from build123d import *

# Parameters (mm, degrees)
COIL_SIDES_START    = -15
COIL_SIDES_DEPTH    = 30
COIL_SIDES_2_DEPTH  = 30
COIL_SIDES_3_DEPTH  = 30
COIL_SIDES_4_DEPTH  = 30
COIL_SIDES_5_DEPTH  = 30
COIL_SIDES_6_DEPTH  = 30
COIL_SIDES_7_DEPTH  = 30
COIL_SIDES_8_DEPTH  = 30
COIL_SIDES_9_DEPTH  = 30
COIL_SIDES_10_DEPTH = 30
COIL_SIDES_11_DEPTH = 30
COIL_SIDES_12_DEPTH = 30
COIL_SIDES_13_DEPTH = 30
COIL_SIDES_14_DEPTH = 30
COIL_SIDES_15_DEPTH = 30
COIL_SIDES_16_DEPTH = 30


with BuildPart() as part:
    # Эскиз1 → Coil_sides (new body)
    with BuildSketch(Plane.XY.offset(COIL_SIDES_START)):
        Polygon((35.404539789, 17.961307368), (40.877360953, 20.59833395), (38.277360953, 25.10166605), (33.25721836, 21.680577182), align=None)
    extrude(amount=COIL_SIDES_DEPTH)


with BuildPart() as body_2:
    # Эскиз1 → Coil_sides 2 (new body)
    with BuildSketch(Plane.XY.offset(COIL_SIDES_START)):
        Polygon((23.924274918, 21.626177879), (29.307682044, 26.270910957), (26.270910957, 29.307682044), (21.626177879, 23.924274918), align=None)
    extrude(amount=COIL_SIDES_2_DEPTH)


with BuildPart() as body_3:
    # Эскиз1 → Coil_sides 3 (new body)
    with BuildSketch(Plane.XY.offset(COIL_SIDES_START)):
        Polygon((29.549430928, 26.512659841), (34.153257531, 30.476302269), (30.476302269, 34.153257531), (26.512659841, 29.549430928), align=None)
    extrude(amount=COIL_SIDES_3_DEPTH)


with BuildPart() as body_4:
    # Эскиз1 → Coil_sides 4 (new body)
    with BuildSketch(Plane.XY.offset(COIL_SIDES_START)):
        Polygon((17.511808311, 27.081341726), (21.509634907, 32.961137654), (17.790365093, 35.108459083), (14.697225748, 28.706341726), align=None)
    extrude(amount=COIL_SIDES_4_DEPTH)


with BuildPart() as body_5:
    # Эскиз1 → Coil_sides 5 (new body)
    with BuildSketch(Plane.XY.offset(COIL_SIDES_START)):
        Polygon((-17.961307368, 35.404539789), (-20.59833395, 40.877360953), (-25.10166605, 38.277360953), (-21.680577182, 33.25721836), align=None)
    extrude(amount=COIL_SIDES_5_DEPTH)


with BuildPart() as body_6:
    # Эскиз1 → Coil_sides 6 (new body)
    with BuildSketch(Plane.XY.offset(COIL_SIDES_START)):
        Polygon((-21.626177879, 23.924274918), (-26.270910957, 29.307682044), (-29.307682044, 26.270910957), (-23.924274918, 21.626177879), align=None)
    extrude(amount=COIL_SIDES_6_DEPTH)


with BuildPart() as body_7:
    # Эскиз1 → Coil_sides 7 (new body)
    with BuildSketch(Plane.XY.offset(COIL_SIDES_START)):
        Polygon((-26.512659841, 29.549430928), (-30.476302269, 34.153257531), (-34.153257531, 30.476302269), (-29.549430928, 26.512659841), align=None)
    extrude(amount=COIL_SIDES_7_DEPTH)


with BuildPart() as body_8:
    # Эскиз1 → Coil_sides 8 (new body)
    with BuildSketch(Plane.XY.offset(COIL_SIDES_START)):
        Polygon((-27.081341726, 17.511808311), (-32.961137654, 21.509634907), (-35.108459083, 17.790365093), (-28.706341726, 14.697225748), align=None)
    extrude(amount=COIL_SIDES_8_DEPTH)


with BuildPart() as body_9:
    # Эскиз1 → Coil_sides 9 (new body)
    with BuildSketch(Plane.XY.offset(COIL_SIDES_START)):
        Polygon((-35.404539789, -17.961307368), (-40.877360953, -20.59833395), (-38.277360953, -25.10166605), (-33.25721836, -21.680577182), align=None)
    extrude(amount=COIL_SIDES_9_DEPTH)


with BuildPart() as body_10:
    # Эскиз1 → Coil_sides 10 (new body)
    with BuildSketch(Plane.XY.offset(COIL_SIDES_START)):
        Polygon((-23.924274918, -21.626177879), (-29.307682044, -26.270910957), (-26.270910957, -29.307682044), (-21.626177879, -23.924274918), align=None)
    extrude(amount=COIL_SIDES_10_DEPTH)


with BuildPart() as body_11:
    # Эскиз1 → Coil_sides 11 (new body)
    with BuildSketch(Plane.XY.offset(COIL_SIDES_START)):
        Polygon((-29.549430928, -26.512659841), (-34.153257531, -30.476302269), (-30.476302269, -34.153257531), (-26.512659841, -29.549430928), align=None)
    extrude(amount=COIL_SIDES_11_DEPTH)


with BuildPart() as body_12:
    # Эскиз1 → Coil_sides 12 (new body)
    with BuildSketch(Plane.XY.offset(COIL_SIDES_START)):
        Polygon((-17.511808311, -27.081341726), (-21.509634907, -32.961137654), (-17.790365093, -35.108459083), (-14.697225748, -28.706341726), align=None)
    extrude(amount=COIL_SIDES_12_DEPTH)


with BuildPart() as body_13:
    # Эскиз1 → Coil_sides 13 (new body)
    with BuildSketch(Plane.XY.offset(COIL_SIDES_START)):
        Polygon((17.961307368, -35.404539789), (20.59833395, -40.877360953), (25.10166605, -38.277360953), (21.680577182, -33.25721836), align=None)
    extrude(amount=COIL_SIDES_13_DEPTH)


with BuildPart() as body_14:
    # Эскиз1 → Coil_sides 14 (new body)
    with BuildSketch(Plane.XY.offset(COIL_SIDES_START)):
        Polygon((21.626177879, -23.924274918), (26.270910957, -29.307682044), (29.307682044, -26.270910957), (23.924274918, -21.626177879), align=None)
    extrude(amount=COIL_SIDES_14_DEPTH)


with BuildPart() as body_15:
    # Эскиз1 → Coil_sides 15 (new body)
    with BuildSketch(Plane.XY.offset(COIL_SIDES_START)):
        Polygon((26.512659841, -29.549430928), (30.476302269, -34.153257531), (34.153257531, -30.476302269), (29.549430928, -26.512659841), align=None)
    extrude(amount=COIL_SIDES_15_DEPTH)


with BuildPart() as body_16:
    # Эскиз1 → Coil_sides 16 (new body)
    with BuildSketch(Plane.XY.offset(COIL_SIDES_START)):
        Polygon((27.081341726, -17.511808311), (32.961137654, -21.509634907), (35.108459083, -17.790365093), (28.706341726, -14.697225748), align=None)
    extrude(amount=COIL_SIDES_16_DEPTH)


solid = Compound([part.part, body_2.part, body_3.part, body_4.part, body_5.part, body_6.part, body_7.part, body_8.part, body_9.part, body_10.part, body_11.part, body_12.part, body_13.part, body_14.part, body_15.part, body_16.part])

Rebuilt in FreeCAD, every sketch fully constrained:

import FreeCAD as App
import Part
import Sketcher
Q = App.Units.Quantity


def add_polygon(sketch, points):
    """Adds a closed chain of lines whose ends are joined by coincident constraints."""
    first, n = sketch.GeometryCount, len(points)
    for a, b in zip(points, points[1:] + points[:1]):
        sketch.addGeometry(Part.LineSegment(App.Vector(*a, 0), App.Vector(*b, 0)), False)
    for i in range(n):
        sketch.addConstraint(Sketcher.Constraint("Coincident", first + i, 2, first + (i + 1) % n, 1))

doc = App.newDocument("Part")
body = doc.addObject("PartDesign::Body", "Body")

sketch1 = body.newObject("Sketcher::SketchObject", "Sketch")
sketch1.AttachmentSupport = (doc.getObject("XY_Plane"), [""])
sketch1.MapMode = "FlatFace"
sketch1.AttachmentOffset = App.Placement(App.Vector(0, 0, -15), App.Rotation())
add_polygon(sketch1, [(35.4, 18), (40.9, 20.6), (38.3, 25.1), (33.3, 21.7)])
sketch1.addConstraint(Sketcher.Constraint("Parallel", 1, 3))
sketch1.addConstraint(Sketcher.Constraint("Equal", 0, 2))
sketch1.addConstraint(Sketcher.Constraint("Angle", 1, Q("120 deg")))
sketch1.addConstraint(Sketcher.Constraint("Distance", 1, Q("5.2 mm")))
sketch1.addConstraint(Sketcher.Constraint("DistanceX", -1, 1, 0, 2, Q("40.877361 mm")))
sketch1.addConstraint(Sketcher.Constraint("DistanceX", -1, 1, 2, 2, Q("33.257218 mm")))
sketch1.addConstraint(Sketcher.Constraint("DistanceX", -1, 1, 3, 2, Q("35.40454 mm")))
sketch1.addConstraint(Sketcher.Constraint("DistanceY", -1, 1, 0, 2, Q("20.598334 mm")))
pad1 = body.newObject("PartDesign::Pad", "Pad")
pad1.Profile = sketch1
pad1.Length = 30
body2 = doc.addObject("PartDesign::Body", "Body001")

sketch2 = body2.newObject("Sketcher::SketchObject", "Sketch001")
sketch2.AttachmentSupport = (doc.getObject("XY_Plane001"), [""])
sketch2.MapMode = "FlatFace"
sketch2.AttachmentOffset = App.Placement(App.Vector(0, 0, -15), App.Rotation())
add_polygon(sketch2, [(23.9, 21.6), (29.3, 26.3), (26.3, 29.3), (21.6, 23.9)])
sketch2.addConstraint(Sketcher.Constraint("Parallel", 1, 3))
sketch2.addConstraint(Sketcher.Constraint("Equal", 0, 2))
sketch2.addConstraint(Sketcher.Constraint("Angle", 1, Q("135 deg")))
sketch2.addConstraint(Sketcher.Constraint("Distance", 3, Q("3.25 mm")))
sketch2.addConstraint(Sketcher.Constraint("DistanceY", -1, 1, 0, 2, Q("26.270911 mm")))
sketch2.addConstraint(Sketcher.Constraint("DistanceX", -1, 1, 1, 2, Q("26.270911 mm")))
sketch2.addConstraint(Sketcher.Constraint("DistanceX", 1, 2, 0, 2, Q("3.036771 mm")))
sketch2.addConstraint(Sketcher.Constraint("Distance", 0, Q("7.110177 mm")))
pad2 = body2.newObject("PartDesign::Pad", "Pad001")
pad2.Profile = sketch2
pad2.Length = 30
body3 = doc.addObject("PartDesign::Body", "Body002")

sketch3 = body3.newObject("Sketcher::SketchObject", "Sketch002")
sketch3.AttachmentSupport = (doc.getObject("XY_Plane002"), [""])
sketch3.MapMode = "FlatFace"
sketch3.AttachmentOffset = App.Placement(App.Vector(0, 0, -15), App.Rotation())
add_polygon(sketch3, [(29.5, 26.5), (34.2, 30.5), (30.5, 34.2), (26.5, 29.5)])
sketch3.addConstraint(Sketcher.Constraint("Parallel", 1, 3))
sketch3.addConstraint(Sketcher.Constraint("Equal", 0, 2))
sketch3.addConstraint(Sketcher.Constraint("Angle", 1, Q("135 deg")))
sketch3.addConstraint(Sketcher.Constraint("Distance", 1, Q("5.2 mm")))
sketch3.addConstraint(Sketcher.Constraint("DistanceX", -1, 1, 2, 2, Q("26.51266 mm")))
sketch3.addConstraint(Sketcher.Constraint("DistanceY", -1, 1, 2, 2, Q("29.549431 mm")))
sketch3.addConstraint(Sketcher.Constraint("DistanceX", -1, 1, 3, 2, Q("29.549431 mm")))
sketch3.addConstraint(Sketcher.Constraint("DistanceY", 2, 2, 0, 2, Q("0.926871 mm")))
pad3 = body3.newObject("PartDesign::Pad", "Pad002")
pad3.Profile = sketch3
pad3.Length = 30
body4 = doc.addObject("PartDesign::Body", "Body003")

sketch4 = body4.newObject("Sketcher::SketchObject", "Sketch003")
sketch4.AttachmentSupport = (doc.getObject("XY_Plane003"), [""])
sketch4.MapMode = "FlatFace"
sketch4.AttachmentOffset = App.Placement(App.Vector(0, 0, -15), App.Rotation())
add_polygon(sketch4, [(17.5, 27.1), (21.5, 33), (17.8, 35.1), (14.7, 28.7)])
sketch4.addConstraint(Sketcher.Constraint("Parallel", 1, 3))
sketch4.addConstraint(Sketcher.Constraint("Equal", 0, 2))
sketch4.addConstraint(Sketcher.Constraint("Angle", 1, Q("150 deg")))
sketch4.addConstraint(Sketcher.Constraint("Distance", 3, Q("3.25 mm")))
sketch4.addConstraint(Sketcher.Constraint("DistanceY", -1, 1, 1, 2, Q("35.108459 mm")))
sketch4.addConstraint(Sketcher.Constraint("DistanceY", -1, 1, 2, 2, Q("28.706342 mm")))
sketch4.addConstraint(Sketcher.Constraint("DistanceX", -1, 1, 3, 2, Q("17.511808 mm")))
sketch4.addConstraint(Sketcher.Constraint("DistanceX", 1, 2, 0, 2, Q("3.71927 mm")))
pad4 = body4.newObject("PartDesign::Pad", "Pad003")
pad4.Profile = sketch4
pad4.Length = 30
body5 = doc.addObject("PartDesign::Body", "Body004")

sketch5 = body5.newObject("Sketcher::SketchObject", "Sketch004")
sketch5.AttachmentSupport = (doc.getObject("XY_Plane004"), [""])
sketch5.MapMode = "FlatFace"
sketch5.AttachmentOffset = App.Placement(App.Vector(0, 0, -15), App.Rotation())
add_polygon(sketch5, [(-18, 35.4), (-20.6, 40.9), (-25.1, 38.3), (-21.7, 33.3)])
sketch5.addConstraint(Sketcher.Constraint("Parallel", 1, 3))
sketch5.addConstraint(Sketcher.Constraint("Equal", 0, 2))
sketch5.addConstraint(Sketcher.Constraint("Angle", 1, Q("-150 deg")))
sketch5.addConstraint(Sketcher.Constraint("Distance", 1, Q("5.2 mm")))
sketch5.addConstraint(Sketcher.Constraint("DistanceY", -1, 1, 0, 2, Q("40.877361 mm")))
sketch5.addConstraint(Sketcher.Constraint("DistanceY", -1, 1, 2, 2, Q("33.257218 mm")))
sketch5.addConstraint(Sketcher.Constraint("DistanceY", -1, 1, 3, 2, Q("35.40454 mm")))
sketch5.addConstraint(Sketcher.Constraint("DistanceX", 0, 2, -1, 1, Q("20.598334 mm")))
pad5 = body5.newObject("PartDesign::Pad", "Pad004")
pad5.Profile = sketch5
pad5.Length = 30
body6 = doc.addObject("PartDesign::Body", "Body005")

sketch6 = body6.newObject("Sketcher::SketchObject", "Sketch005")
sketch6.AttachmentSupport = (doc.getObject("XY_Plane005"), [""])
sketch6.MapMode = "FlatFace"
sketch6.AttachmentOffset = App.Placement(App.Vector(0, 0, -15), App.Rotation())
add_polygon(sketch6, [(-21.6, 23.9), (-26.3, 29.3), (-29.3, 26.3), (-23.9, 21.6)])
sketch6.addConstraint(Sketcher.Constraint("Parallel", 1, 3))
sketch6.addConstraint(Sketcher.Constraint("Equal", 0, 2))
sketch6.addConstraint(Sketcher.Constraint("Angle", 1, Q("-135 deg")))
sketch6.addConstraint(Sketcher.Constraint("Distance", 3, Q("3.25 mm")))
sketch6.addConstraint(Sketcher.Constraint("DistanceX", 0, 2, -1, 1, Q("26.270911 mm")))
sketch6.addConstraint(Sketcher.Constraint("DistanceY", -1, 1, 1, 2, Q("26.270911 mm")))
sketch6.addConstraint(Sketcher.Constraint("DistanceX", 1, 2, 0, 2, Q("3.036771 mm")))
sketch6.addConstraint(Sketcher.Constraint("Distance", 0, Q("7.110177 mm")))
pad6 = body6.newObject("PartDesign::Pad", "Pad005")
pad6.Profile = sketch6
pad6.Length = 30
body7 = doc.addObject("PartDesign::Body", "Body006")

sketch7 = body7.newObject("Sketcher::SketchObject", "Sketch006")
sketch7.AttachmentSupport = (doc.getObject("XY_Plane006"), [""])
sketch7.MapMode = "FlatFace"
sketch7.AttachmentOffset = App.Placement(App.Vector(0, 0, -15), App.Rotation())
add_polygon(sketch7, [(-26.5, 29.5), (-30.5, 34.2), (-34.2, 30.5), (-29.5, 26.5)])
sketch7.addConstraint(Sketcher.Constraint("Parallel", 1, 3))
sketch7.addConstraint(Sketcher.Constraint("Equal", 0, 2))
sketch7.addConstraint(Sketcher.Constraint("Angle", 1, Q("-135 deg")))
sketch7.addConstraint(Sketcher.Constraint("Distance", 1, Q("5.2 mm")))
sketch7.addConstraint(Sketcher.Constraint("DistanceX", 2, 2, -1, 1, Q("29.549431 mm")))
sketch7.addConstraint(Sketcher.Constraint("DistanceY", -1, 1, 2, 2, Q("26.51266 mm")))
sketch7.addConstraint(Sketcher.Constraint("DistanceX", 3, 2, -1, 1, Q("26.51266 mm")))
sketch7.addConstraint(Sketcher.Constraint("DistanceX", 0, 2, 2, 2, Q("0.926871 mm")))
pad7 = body7.newObject("PartDesign::Pad", "Pad006")
pad7.Profile = sketch7
pad7.Length = 30
body8 = doc.addObject("PartDesign::Body", "Body007")

sketch8 = body8.newObject("Sketcher::SketchObject", "Sketch007")
sketch8.AttachmentSupport = (doc.getObject("XY_Plane007"), [""])
sketch8.MapMode = "FlatFace"
sketch8.AttachmentOffset = App.Placement(App.Vector(0, 0, -15), App.Rotation())
add_polygon(sketch8, [(-27.1, 17.5), (-33, 21.5), (-35.1, 17.8), (-28.7, 14.7)])
sketch8.addConstraint(Sketcher.Constraint("Parallel", 1, 3))
sketch8.addConstraint(Sketcher.Constraint("Equal", 0, 2))
sketch8.addConstraint(Sketcher.Constraint("Angle", 1, Q("-120 deg")))
sketch8.addConstraint(Sketcher.Constraint("Distance", 3, Q("3.25 mm")))
sketch8.addConstraint(Sketcher.Constraint("DistanceX", 1, 2, -1, 1, Q("35.108459 mm")))
sketch8.addConstraint(Sketcher.Constraint("DistanceX", 2, 2, -1, 1, Q("28.706342 mm")))
sketch8.addConstraint(Sketcher.Constraint("DistanceY", -1, 1, 3, 2, Q("17.511808 mm")))
sketch8.addConstraint(Sketcher.Constraint("DistanceX", 1, 2, 0, 2, Q("2.147321 mm")))
pad8 = body8.newObject("PartDesign::Pad", "Pad007")
pad8.Profile = sketch8
pad8.Length = 30
body9 = doc.addObject("PartDesign::Body", "Body008")

sketch9 = body9.newObject("Sketcher::SketchObject", "Sketch008")
sketch9.AttachmentSupport = (doc.getObject("XY_Plane008"), [""])
sketch9.MapMode = "FlatFace"
sketch9.AttachmentOffset = App.Placement(App.Vector(0, 0, -15), App.Rotation())
add_polygon(sketch9, [(-35.4, -18), (-40.9, -20.6), (-38.3, -25.1), (-33.3, -21.7)])
sketch9.addConstraint(Sketcher.Constraint("Parallel", 1, 3))
sketch9.addConstraint(Sketcher.Constraint("Equal", 0, 2))
sketch9.addConstraint(Sketcher.Constraint("Angle", 1, Q("-60 deg")))
sketch9.addConstraint(Sketcher.Constraint("Distance", 1, Q("5.2 mm")))
sketch9.addConstraint(Sketcher.Constraint("DistanceX", 0, 2, -1, 1, Q("40.877361 mm")))
sketch9.addConstraint(Sketcher.Constraint("DistanceX", 2, 2, -1, 1, Q("33.257218 mm")))
sketch9.addConstraint(Sketcher.Constraint("DistanceX", 3, 2, -1, 1, Q("35.40454 mm")))
sketch9.addConstraint(Sketcher.Constraint("DistanceY", 0, 2, -1, 1, Q("20.598334 mm")))
pad9 = body9.newObject("PartDesign::Pad", "Pad008")
pad9.Profile = sketch9
pad9.Length = 30
body10 = doc.addObject("PartDesign::Body", "Body009")

sketch10 = body10.newObject("Sketcher::SketchObject", "Sketch009")
sketch10.AttachmentSupport = (doc.getObject("XY_Plane009"), [""])
sketch10.MapMode = "FlatFace"
sketch10.AttachmentOffset = App.Placement(App.Vector(0, 0, -15), App.Rotation())
add_polygon(sketch10, [(-23.9, -21.6), (-29.3, -26.3), (-26.3, -29.3), (-21.6, -23.9)])
sketch10.addConstraint(Sketcher.Constraint("Parallel", 1, 3))
sketch10.addConstraint(Sketcher.Constraint("Equal", 0, 2))
sketch10.addConstraint(Sketcher.Constraint("Angle", 1, Q("-45 deg")))
sketch10.addConstraint(Sketcher.Constraint("Distance", 3, Q("3.25 mm")))
sketch10.addConstraint(Sketcher.Constraint("DistanceY", 0, 2, -1, 1, Q("26.270911 mm")))
sketch10.addConstraint(Sketcher.Constraint("DistanceX", 1, 2, -1, 1, Q("26.270911 mm")))
sketch10.addConstraint(Sketcher.Constraint("DistanceX", 0, 2, 1, 2, Q("3.036771 mm")))
sketch10.addConstraint(Sketcher.Constraint("Distance", 0, Q("7.110177 mm")))
pad10 = body10.newObject("PartDesign::Pad", "Pad009")
pad10.Profile = sketch10
pad10.Length = 30
body11 = doc.addObject("PartDesign::Body", "Body010")

sketch11 = body11.newObject("Sketcher::SketchObject", "Sketch010")
sketch11.AttachmentSupport = (doc.getObject("XY_Plane010"), [""])
sketch11.MapMode = "FlatFace"
sketch11.AttachmentOffset = App.Placement(App.Vector(0, 0, -15), App.Rotation())
add_polygon(sketch11, [(-29.5, -26.5), (-34.2, -30.5), (-30.5, -34.2), (-26.5, -29.5)])
sketch11.addConstraint(Sketcher.Constraint("Parallel", 1, 3))
sketch11.addConstraint(Sketcher.Constraint("Equal", 0, 2))
sketch11.addConstraint(Sketcher.Constraint("Angle", 1, Q("-45 deg")))
sketch11.addConstraint(Sketcher.Constraint("Distance", 1, Q("5.2 mm")))
sketch11.addConstraint(Sketcher.Constraint("DistanceX", 2, 2, -1, 1, Q("26.51266 mm")))
sketch11.addConstraint(Sketcher.Constraint("DistanceY", 2, 2, -1, 1, Q("29.549431 mm")))
sketch11.addConstraint(Sketcher.Constraint("DistanceX", 3, 2, -1, 1, Q("29.549431 mm")))
sketch11.addConstraint(Sketcher.Constraint("DistanceY", 0, 2, 2, 2, Q("0.926871 mm")))
pad11 = body11.newObject("PartDesign::Pad", "Pad010")
pad11.Profile = sketch11
pad11.Length = 30
body12 = doc.addObject("PartDesign::Body", "Body011")

sketch12 = body12.newObject("Sketcher::SketchObject", "Sketch011")
sketch12.AttachmentSupport = (doc.getObject("XY_Plane011"), [""])
sketch12.MapMode = "FlatFace"
sketch12.AttachmentOffset = App.Placement(App.Vector(0, 0, -15), App.Rotation())
add_polygon(sketch12, [(-17.5, -27.1), (-21.5, -33), (-17.8, -35.1), (-14.7, -28.7)])
sketch12.addConstraint(Sketcher.Constraint("Parallel", 1, 3))
sketch12.addConstraint(Sketcher.Constraint("Equal", 0, 2))
sketch12.addConstraint(Sketcher.Constraint("Angle", 1, Q("-30 deg")))
sketch12.addConstraint(Sketcher.Constraint("Distance", 3, Q("3.25 mm")))
sketch12.addConstraint(Sketcher.Constraint("DistanceY", 1, 2, -1, 1, Q("35.108459 mm")))
sketch12.addConstraint(Sketcher.Constraint("DistanceY", 2, 2, -1, 1, Q("28.706342 mm")))
sketch12.addConstraint(Sketcher.Constraint("DistanceX", 3, 2, -1, 1, Q("17.511808 mm")))
sketch12.addConstraint(Sketcher.Constraint("DistanceX", 0, 2, 1, 2, Q("3.71927 mm")))
pad12 = body12.newObject("PartDesign::Pad", "Pad011")
pad12.Profile = sketch12
pad12.Length = 30
body13 = doc.addObject("PartDesign::Body", "Body012")

sketch13 = body13.newObject("Sketcher::SketchObject", "Sketch012")
sketch13.AttachmentSupport = (doc.getObject("XY_Plane012"), [""])
sketch13.MapMode = "FlatFace"
sketch13.AttachmentOffset = App.Placement(App.Vector(0, 0, -15), App.Rotation())
add_polygon(sketch13, [(18, -35.4), (20.6, -40.9), (25.1, -38.3), (21.7, -33.3)])
sketch13.addConstraint(Sketcher.Constraint("Parallel", 1, 3))
sketch13.addConstraint(Sketcher.Constraint("Equal", 0, 2))
sketch13.addConstraint(Sketcher.Constraint("Angle", 1, Q("30 deg")))
sketch13.addConstraint(Sketcher.Constraint("Distance", 1, Q("5.2 mm")))
sketch13.addConstraint(Sketcher.Constraint("DistanceY", 0, 2, -1, 1, Q("40.877361 mm")))
sketch13.addConstraint(Sketcher.Constraint("DistanceY", 2, 2, -1, 1, Q("33.257218 mm")))
sketch13.addConstraint(Sketcher.Constraint("DistanceY", 3, 2, -1, 1, Q("35.40454 mm")))
sketch13.addConstraint(Sketcher.Constraint("DistanceX", -1, 1, 0, 2, Q("20.598334 mm")))
pad13 = body13.newObject("PartDesign::Pad", "Pad012")
pad13.Profile = sketch13
pad13.Length = 30
body14 = doc.addObject("PartDesign::Body", "Body013")

sketch14 = body14.newObject("Sketcher::SketchObject", "Sketch013")
sketch14.AttachmentSupport = (doc.getObject("XY_Plane013"), [""])
sketch14.MapMode = "FlatFace"
sketch14.AttachmentOffset = App.Placement(App.Vector(0, 0, -15), App.Rotation())
add_polygon(sketch14, [(21.6, -23.9), (26.3, -29.3), (29.3, -26.3), (23.9, -21.6)])
sketch14.addConstraint(Sketcher.Constraint("Parallel", 1, 3))
sketch14.addConstraint(Sketcher.Constraint("Equal", 0, 2))
sketch14.addConstraint(Sketcher.Constraint("Angle", 1, Q("45 deg")))
sketch14.addConstraint(Sketcher.Constraint("Distance", 3, Q("3.25 mm")))
sketch14.addConstraint(Sketcher.Constraint("DistanceX", -1, 1, 0, 2, Q("26.270911 mm")))
sketch14.addConstraint(Sketcher.Constraint("DistanceY", 1, 2, -1, 1, Q("26.270911 mm")))
sketch14.addConstraint(Sketcher.Constraint("DistanceX", 0, 2, 1, 2, Q("3.036771 mm")))
sketch14.addConstraint(Sketcher.Constraint("Distance", 0, Q("7.110177 mm")))
pad14 = body14.newObject("PartDesign::Pad", "Pad013")
pad14.Profile = sketch14
pad14.Length = 30
body15 = doc.addObject("PartDesign::Body", "Body014")

sketch15 = body15.newObject("Sketcher::SketchObject", "Sketch014")
sketch15.AttachmentSupport = (doc.getObject("XY_Plane014"), [""])
sketch15.MapMode = "FlatFace"
sketch15.AttachmentOffset = App.Placement(App.Vector(0, 0, -15), App.Rotation())
add_polygon(sketch15, [(26.5, -29.5), (30.5, -34.2), (34.2, -30.5), (29.5, -26.5)])
sketch15.addConstraint(Sketcher.Constraint("Parallel", 1, 3))
sketch15.addConstraint(Sketcher.Constraint("Equal", 0, 2))
sketch15.addConstraint(Sketcher.Constraint("Angle", 1, Q("45 deg")))
sketch15.addConstraint(Sketcher.Constraint("Distance", 1, Q("5.2 mm")))
sketch15.addConstraint(Sketcher.Constraint("DistanceX", -1, 1, 2, 2, Q("29.549431 mm")))
sketch15.addConstraint(Sketcher.Constraint("DistanceY", 2, 2, -1, 1, Q("26.51266 mm")))
sketch15.addConstraint(Sketcher.Constraint("DistanceX", -1, 1, 3, 2, Q("26.51266 mm")))
sketch15.addConstraint(Sketcher.Constraint("DistanceX", 2, 2, 0, 2, Q("0.926871 mm")))
pad15 = body15.newObject("PartDesign::Pad", "Pad014")
pad15.Profile = sketch15
pad15.Length = 30
body16 = doc.addObject("PartDesign::Body", "Body015")

sketch16 = body16.newObject("Sketcher::SketchObject", "Sketch015")
sketch16.AttachmentSupport = (doc.getObject("XY_Plane015"), [""])
sketch16.MapMode = "FlatFace"
sketch16.AttachmentOffset = App.Placement(App.Vector(0, 0, -15), App.Rotation())
add_polygon(sketch16, [(27.1, -17.5), (33, -21.5), (35.1, -17.8), (28.7, -14.7)])
sketch16.addConstraint(Sketcher.Constraint("Parallel", 1, 3))
sketch16.addConstraint(Sketcher.Constraint("Equal", 0, 2))
sketch16.addConstraint(Sketcher.Constraint("Angle", 1, Q("60 deg")))
sketch16.addConstraint(Sketcher.Constraint("Distance", 3, Q("3.25 mm")))
sketch16.addConstraint(Sketcher.Constraint("DistanceX", -1, 1, 1, 2, Q("35.108459 mm")))
sketch16.addConstraint(Sketcher.Constraint("DistanceX", -1, 1, 2, 2, Q("28.706342 mm")))
sketch16.addConstraint(Sketcher.Constraint("DistanceY", 3, 2, -1, 1, Q("17.511808 mm")))
sketch16.addConstraint(Sketcher.Constraint("DistanceX", 0, 2, 1, 2, Q("2.147321 mm")))
pad16 = body16.newObject("PartDesign::Pad", "Pad015")
pad16.Profile = sketch16
pad16.Length = 30

doc.recompute()
